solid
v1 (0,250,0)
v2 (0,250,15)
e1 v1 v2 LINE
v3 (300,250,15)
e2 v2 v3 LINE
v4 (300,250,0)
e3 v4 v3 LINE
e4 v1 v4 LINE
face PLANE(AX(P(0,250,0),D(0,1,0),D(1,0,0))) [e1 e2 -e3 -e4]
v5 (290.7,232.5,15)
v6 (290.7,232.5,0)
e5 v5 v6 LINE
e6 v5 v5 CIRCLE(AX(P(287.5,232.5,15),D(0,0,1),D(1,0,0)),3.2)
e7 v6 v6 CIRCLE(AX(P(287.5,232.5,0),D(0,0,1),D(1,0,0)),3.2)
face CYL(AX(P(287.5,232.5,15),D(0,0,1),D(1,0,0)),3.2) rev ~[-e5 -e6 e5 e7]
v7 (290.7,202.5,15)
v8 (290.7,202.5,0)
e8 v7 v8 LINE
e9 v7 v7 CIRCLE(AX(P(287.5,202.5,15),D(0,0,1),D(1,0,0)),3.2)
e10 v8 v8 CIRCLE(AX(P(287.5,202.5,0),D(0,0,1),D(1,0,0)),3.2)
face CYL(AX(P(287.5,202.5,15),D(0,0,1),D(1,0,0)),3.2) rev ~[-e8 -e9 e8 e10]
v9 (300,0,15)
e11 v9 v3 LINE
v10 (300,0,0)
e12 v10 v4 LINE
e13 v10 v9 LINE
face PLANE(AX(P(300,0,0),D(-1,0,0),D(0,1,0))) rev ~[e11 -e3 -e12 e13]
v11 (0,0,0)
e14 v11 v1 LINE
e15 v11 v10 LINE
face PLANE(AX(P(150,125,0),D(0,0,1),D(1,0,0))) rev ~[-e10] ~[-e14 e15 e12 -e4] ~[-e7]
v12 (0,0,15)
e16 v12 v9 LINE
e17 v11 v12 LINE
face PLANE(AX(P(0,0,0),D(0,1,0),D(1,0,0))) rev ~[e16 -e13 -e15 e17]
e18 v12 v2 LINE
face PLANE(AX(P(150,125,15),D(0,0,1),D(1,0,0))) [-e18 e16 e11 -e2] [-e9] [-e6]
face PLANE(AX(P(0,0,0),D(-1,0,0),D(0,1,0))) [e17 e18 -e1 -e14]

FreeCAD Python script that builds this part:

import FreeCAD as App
import Part
import Sketcher
Q = App.Units.Quantity


def add_polygon(sketch, points):
    """Adds a closed chain of lines whose ends are joined by coincident constraints."""
    first, n = sketch.GeometryCount, len(points)
    for a, b in zip(points, points[1:] + points[:1]):
        sketch.addGeometry(Part.LineSegment(App.Vector(*a, 0), App.Vector(*b, 0)), False)
    for i in range(n):
        sketch.addConstraint(Sketcher.Constraint("Coincident", first + i, 2, first + (i + 1) % n, 1))

doc = App.newDocument("Part")
body = doc.addObject("PartDesign::Body", "Body")

# Sketch on XY plane
sketch1 = doc.addObject("Sketcher::SketchObject", "Sketch")
body.addObject(sketch1)
sketch1.AttachmentSupport = (doc.XY_Plane, [""])
sketch1.MapMode = "FlatFace"
add_polygon(sketch1, [(0, 250), (0, 0), (300, 0), (300, 250)])  # lines 0-3
sketch1.addConstraint(Sketcher.Constraint("Vertical", 0))
sketch1.addConstraint(Sketcher.Constraint("Horizontal", 1))
sketch1.addConstraint(Sketcher.Constraint("Vertical", 2))
sketch1.addConstraint(Sketcher.Constraint("Horizontal", 3))
sketch1.addConstraint(Sketcher.Constraint("Coincident", 0, 2, -1, 1))
sketch1.addConstraint(Sketcher.Constraint("DistanceX", 1, 1, 1, 2, Q("300 mm")))
sketch1.addConstraint(Sketcher.Constraint("DistanceY", 0, 2, 0, 1, Q("250 mm")))
pad1 = doc.addObject("PartDesign::Pad", "Pad")
body.addObject(pad1)
pad1.Profile = sketch1
pad1.Length = 15

# Sketch on XY plane
sketch2 = doc.addObject("Sketcher::SketchObject", "Sketch001")
body.addObject(sketch2)
sketch2.AttachmentSupport = (doc.XY_Plane, [""])
sketch2.MapMode = "FlatFace"
sketch2.AttachmentOffset = App.Placement(App.Vector(0, 0, 15), App.Rotation())
sketch2.addGeometry(Part.Circle(App.Vector(287.5, 232.5, 0), App.Vector(0, 0, 1), 3.2), False)
sketch2.addGeometry(Part.Circle(App.Vector(287.5, 202.5, 0), App.Vector(0, 0, 1), 3.2), False)
sketch2.addConstraint(Sketcher.Constraint("Equal", 0, 1))
sketch2.addConstraint(Sketcher.Constraint("Vertical", 0, 3, 1, 3))
sketch2.addConstraint(Sketcher.Constraint("Diameter", 0, Q("6.4 mm")))
sketch2.addConstraint(Sketcher.Constraint("DistanceY", 1, 3, 0, 3, Q("30 mm")))
sketch2.addConstraint(Sketcher.Constraint("DistanceX", -1, 1, 0, 3, Q("287.5 mm")))
sketch2.addConstraint(Sketcher.Constraint("DistanceY", -1, 1, 0, 3, Q("232.5 mm")))
pocket1 = doc.addObject("PartDesign::Pocket", "Pocket")
body.addObject(pocket1)
pocket1.Profile = sketch2
pocket1.Type = "ThroughAll"

doc.recompute()
